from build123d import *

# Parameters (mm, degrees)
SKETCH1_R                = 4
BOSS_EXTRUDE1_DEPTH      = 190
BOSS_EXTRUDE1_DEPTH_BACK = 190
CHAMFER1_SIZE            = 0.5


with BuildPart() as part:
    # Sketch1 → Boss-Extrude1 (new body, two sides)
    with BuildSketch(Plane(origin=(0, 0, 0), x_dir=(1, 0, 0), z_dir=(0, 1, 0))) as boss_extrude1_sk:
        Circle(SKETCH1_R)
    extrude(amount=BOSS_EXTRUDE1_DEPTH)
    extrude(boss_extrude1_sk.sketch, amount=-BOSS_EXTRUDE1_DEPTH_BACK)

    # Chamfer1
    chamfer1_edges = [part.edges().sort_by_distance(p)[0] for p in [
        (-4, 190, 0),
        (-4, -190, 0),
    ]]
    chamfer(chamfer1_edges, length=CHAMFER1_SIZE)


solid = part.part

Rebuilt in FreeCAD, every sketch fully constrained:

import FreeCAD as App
import Part
import Sketcher
from FreeCAD import Vector


def edges_at(feature, points):
    """Names of the edges that pass closest to the given points."""
    edges = feature.Shape.Edges
    near = lambda p: min(range(len(edges)), key=lambda i: edges[i].distToShape(Part.Vertex(*p))[0])
    return sorted({f"Edge{near(p) + 1}" for p in points})

doc = App.newDocument("Part")
params = doc.addObject("Spreadsheet::Sheet", "Params")
for row, (alias, value) in enumerate([
    ("sketch1_diameter", "8 mm"),
    ("pad1_length", "190 mm"),
    ("pad1_length2", "190 mm"),
    ("chamfer_size", "0.5 mm"),
], start=1):
    params.set(f"A{row}", alias)
    params.set(f"B{row}", "=" + value)
    params.setAlias(f"B{row}", alias)

body = doc.addObject("PartDesign::Body", "Body")

sketch1 = body.newObject("Sketcher::SketchObject", "Sketch")
sketch1.AttachmentSupport = (doc.getObject("XZ_Plane"), [""])
sketch1.MapMode = "FlatFace"
sketch1.addGeometry(Part.Circle(Vector(0, 0, 0), Vector(0, 0, 1), 4), False)
sketch1.addConstraint(Sketcher.Constraint("Coincident", 0, 3, -1, 1))
sketch1.addConstraint(Sketcher.Constraint("Diameter", 0, 8.0))
sketch1.setExpression("Constraints[1]", "Params.sketch1_diameter")
pad1 = body.newObject("PartDesign::Pad", "Pad")
pad1.Profile = sketch1
pad1.Type = "TwoLengths"
pad1.setExpression("Length", "Params.pad1_length")
pad1.setExpression("Length2", "Params.pad1_length2")
pad1.Reversed = True
doc.recompute()

chamfer = body.newObject("PartDesign::Chamfer", "Chamfer")
chamfer.Base = (pad1, edges_at(pad1, [(-4, 190, 0), (-4, -190, 0)]))
chamfer.setExpression("Size", "Params.chamfer_size")

doc.recompute()
